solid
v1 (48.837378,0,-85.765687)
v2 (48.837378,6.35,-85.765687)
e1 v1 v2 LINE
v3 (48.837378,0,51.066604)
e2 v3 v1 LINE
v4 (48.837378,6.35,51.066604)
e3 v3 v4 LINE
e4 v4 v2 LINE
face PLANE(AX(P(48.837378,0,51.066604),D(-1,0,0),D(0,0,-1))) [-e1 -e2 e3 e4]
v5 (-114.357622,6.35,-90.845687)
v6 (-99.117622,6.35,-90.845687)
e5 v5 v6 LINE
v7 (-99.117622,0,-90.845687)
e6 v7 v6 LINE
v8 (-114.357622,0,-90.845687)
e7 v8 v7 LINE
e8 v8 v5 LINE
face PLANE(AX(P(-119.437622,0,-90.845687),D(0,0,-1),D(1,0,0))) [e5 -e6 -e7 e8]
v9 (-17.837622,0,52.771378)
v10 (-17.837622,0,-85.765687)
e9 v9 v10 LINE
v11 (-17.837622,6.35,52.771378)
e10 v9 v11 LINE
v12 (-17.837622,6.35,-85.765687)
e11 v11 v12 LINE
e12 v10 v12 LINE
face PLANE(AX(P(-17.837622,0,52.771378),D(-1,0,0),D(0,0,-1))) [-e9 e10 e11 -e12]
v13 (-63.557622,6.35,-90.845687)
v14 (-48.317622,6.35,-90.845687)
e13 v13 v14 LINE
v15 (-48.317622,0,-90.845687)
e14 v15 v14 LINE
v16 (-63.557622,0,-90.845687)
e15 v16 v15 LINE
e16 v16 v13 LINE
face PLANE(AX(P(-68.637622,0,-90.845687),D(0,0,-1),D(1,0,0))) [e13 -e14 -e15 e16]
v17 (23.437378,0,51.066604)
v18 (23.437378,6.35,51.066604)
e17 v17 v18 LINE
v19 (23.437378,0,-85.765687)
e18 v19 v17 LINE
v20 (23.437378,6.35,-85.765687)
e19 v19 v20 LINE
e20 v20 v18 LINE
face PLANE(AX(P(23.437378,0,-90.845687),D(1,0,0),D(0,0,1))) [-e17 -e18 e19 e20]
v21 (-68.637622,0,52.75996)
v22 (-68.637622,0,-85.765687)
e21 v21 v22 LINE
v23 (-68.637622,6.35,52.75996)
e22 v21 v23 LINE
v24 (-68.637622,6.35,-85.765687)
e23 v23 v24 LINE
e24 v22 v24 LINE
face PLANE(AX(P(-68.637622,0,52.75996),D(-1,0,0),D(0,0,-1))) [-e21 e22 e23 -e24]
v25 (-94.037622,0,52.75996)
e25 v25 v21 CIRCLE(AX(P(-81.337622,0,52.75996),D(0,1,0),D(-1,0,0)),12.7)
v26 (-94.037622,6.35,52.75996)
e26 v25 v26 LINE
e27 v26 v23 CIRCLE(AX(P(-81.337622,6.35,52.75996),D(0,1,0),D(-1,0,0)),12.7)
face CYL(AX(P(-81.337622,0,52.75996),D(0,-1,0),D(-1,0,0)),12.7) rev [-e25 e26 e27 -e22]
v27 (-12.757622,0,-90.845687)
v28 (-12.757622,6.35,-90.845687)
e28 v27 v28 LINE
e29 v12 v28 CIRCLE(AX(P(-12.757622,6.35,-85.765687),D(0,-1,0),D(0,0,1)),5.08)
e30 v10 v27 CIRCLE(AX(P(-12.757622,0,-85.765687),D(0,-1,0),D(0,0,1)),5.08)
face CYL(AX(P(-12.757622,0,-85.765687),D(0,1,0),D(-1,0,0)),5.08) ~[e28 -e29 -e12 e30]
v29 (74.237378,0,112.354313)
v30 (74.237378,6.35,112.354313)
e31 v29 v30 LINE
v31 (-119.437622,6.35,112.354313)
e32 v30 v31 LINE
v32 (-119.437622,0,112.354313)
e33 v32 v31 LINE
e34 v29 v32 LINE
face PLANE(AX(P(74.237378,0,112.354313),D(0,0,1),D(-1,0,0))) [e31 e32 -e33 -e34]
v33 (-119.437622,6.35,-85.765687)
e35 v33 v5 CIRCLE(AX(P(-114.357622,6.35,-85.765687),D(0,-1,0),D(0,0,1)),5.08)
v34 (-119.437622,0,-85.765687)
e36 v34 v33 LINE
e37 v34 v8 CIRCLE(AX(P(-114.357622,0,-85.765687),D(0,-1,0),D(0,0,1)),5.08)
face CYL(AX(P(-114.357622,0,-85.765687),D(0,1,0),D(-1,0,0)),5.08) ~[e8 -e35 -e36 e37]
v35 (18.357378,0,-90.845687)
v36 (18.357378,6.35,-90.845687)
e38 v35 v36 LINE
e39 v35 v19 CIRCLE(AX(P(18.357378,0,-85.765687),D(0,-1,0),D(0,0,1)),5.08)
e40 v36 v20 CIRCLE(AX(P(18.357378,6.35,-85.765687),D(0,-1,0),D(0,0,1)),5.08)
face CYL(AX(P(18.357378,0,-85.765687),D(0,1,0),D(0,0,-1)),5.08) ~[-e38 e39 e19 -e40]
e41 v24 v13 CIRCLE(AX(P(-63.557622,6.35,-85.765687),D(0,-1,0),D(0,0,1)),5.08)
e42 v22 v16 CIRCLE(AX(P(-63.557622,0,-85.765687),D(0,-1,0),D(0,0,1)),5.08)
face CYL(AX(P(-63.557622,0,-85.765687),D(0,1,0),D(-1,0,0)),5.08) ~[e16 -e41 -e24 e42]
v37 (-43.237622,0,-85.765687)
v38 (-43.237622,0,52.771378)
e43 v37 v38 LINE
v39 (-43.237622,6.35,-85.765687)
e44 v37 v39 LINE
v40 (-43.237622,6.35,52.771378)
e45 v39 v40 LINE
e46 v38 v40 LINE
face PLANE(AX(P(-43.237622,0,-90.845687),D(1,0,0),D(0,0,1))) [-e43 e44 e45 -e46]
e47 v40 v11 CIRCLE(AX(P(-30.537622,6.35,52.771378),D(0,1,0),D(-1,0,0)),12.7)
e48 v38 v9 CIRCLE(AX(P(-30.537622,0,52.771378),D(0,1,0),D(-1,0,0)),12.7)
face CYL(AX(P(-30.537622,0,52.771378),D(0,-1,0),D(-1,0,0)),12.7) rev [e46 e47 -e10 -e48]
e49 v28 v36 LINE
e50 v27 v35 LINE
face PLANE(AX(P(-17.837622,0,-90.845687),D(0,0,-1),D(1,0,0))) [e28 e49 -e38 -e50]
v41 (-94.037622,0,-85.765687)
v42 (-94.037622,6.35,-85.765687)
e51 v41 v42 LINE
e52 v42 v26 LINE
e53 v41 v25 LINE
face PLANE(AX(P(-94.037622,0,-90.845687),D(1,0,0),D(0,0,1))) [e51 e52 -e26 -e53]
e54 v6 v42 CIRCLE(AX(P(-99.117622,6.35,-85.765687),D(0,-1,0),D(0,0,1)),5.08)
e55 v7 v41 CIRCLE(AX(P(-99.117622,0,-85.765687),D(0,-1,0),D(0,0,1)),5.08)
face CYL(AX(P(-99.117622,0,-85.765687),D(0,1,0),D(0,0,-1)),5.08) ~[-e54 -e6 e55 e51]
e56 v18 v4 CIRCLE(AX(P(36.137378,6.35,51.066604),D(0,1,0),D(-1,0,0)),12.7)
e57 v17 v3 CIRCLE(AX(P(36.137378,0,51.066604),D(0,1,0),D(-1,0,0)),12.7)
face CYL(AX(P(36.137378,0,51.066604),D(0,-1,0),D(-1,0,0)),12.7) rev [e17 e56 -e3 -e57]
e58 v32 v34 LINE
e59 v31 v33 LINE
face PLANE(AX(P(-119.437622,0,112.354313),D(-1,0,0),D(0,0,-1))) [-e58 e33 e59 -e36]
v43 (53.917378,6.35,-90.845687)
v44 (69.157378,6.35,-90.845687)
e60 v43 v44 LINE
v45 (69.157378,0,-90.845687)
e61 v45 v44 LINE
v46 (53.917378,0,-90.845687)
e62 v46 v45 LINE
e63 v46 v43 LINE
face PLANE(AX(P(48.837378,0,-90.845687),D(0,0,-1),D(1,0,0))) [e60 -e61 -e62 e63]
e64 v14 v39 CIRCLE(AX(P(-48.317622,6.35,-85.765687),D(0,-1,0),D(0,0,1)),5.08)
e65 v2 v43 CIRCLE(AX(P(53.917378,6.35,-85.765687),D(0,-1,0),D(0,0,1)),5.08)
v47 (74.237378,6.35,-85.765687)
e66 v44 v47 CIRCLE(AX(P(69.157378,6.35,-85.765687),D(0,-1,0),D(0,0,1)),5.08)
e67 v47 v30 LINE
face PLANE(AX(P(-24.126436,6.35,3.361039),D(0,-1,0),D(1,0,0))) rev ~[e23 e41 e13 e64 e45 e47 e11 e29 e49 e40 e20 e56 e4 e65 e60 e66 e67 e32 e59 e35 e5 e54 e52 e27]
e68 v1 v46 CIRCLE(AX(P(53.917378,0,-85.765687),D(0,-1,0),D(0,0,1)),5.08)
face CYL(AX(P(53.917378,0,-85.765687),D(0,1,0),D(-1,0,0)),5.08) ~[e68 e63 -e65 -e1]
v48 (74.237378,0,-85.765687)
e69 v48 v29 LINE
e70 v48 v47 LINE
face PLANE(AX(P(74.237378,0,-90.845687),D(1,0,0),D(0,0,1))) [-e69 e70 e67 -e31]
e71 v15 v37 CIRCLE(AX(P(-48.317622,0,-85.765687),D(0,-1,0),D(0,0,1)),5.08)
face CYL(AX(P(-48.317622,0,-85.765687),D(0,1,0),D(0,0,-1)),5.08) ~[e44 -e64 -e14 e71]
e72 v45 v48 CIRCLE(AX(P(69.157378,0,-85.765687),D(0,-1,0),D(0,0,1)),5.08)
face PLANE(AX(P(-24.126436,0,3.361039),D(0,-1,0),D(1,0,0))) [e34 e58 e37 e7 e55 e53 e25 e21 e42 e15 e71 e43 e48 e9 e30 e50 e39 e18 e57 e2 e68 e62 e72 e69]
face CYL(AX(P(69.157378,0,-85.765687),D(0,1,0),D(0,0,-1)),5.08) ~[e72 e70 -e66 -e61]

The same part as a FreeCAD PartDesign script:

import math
import FreeCAD as App
import Part
import Sketcher
Q = App.Units.Quantity


def edges_at(feature, points):
    """Names of the edges that pass closest to the given points."""
    edges = feature.Shape.Edges
    near = lambda p: min(range(len(edges)), key=lambda i: edges[i].distToShape(Part.Vertex(*p))[0])
    return sorted({f"Edge{near(p) + 1}" for p in points})

doc = App.newDocument("Part")
body = doc.addObject("PartDesign::Body", "Body")

# Sketch on XZ plane
sketch1 = body.newObject("Sketcher::SketchObject", "Sketch")
sketch1.AttachmentSupport = (doc.getObject("XZ_Plane"), [""])
sketch1.MapMode = "FlatFace"
sketch1.addGeometry([
    Part.LineSegment(App.Vector(74, 112, 0), App.Vector(-119, 112, 0)),  # 0
    Part.LineSegment(App.Vector(-119, 112, 0), App.Vector(-119, -91, 0)),  # 1
    Part.LineSegment(App.Vector(-119, -91, 0), App.Vector(-94, -91, 0)),  # 2
    Part.LineSegment(App.Vector(-94, -91, 0), App.Vector(-94, 53, 0)),  # 3
    Part.ArcOfCircle(Part.Circle(App.Vector(-81, 53, 0), App.Vector(0, 0, 1), 13), math.radians(0), math.radians(180)),  # 4
    Part.LineSegment(App.Vector(-69, 53, 0), App.Vector(-69, -91, 0)),  # 5
    Part.LineSegment(App.Vector(-69, -91, 0), App.Vector(-43, -91, 0)),  # 6
    Part.LineSegment(App.Vector(-43, -91, 0), App.Vector(-43, 53, 0)),  # 7
    Part.ArcOfCircle(Part.Circle(App.Vector(-31, 53, 0), App.Vector(0, 0, 1), 13), math.radians(0), math.radians(180)),  # 8
    Part.LineSegment(App.Vector(-18, 53, 0), App.Vector(-18, -91, 0)),  # 9
    Part.LineSegment(App.Vector(-18, -91, 0), App.Vector(23, -91, 0)),  # 10
    Part.LineSegment(App.Vector(23, -91, 0), App.Vector(23, 51, 0)),  # 11
    Part.ArcOfCircle(Part.Circle(App.Vector(36, 51, 0), App.Vector(0, 0, 1), 13), math.radians(0), math.radians(180)),  # 12
    Part.LineSegment(App.Vector(49, 51, 0), App.Vector(49, -91, 0)),  # 13
    Part.LineSegment(App.Vector(49, -91, 0), App.Vector(74, -91, 0)),  # 14
    Part.LineSegment(App.Vector(74, -91, 0), App.Vector(74, 112, 0)),  # 15
], False)
sketch1.addConstraint([
    Sketcher.Constraint("Coincident", 0, 2, 1, 1),
    Sketcher.Constraint("Coincident", 1, 2, 2, 1),
    Sketcher.Constraint("Coincident", 2, 2, 3, 1),
    Sketcher.Constraint("Tangent", 3, 2, 4, 2),
    Sketcher.Constraint("Tangent", 4, 1, 5, 1),
    Sketcher.Constraint("Coincident", 5, 2, 6, 1),
    Sketcher.Constraint("Coincident", 6, 2, 7, 1),
    Sketcher.Constraint("Tangent", 7, 2, 8, 2),
    Sketcher.Constraint("Tangent", 8, 1, 9, 1),
    Sketcher.Constraint("Coincident", 9, 2, 10, 1),
    Sketcher.Constraint("Coincident", 10, 2, 11, 1),
    Sketcher.Constraint("Tangent", 11, 2, 12, 2),
    Sketcher.Constraint("Tangent", 12, 1, 13, 1),
    Sketcher.Constraint("Coincident", 13, 2, 14, 1),
    Sketcher.Constraint("Coincident", 14, 2, 15, 1),
    Sketcher.Constraint("Coincident", 15, 2, 0, 1),
    Sketcher.Constraint("Horizontal", 0),
    Sketcher.Constraint("Vertical", 1),
    Sketcher.Constraint("Horizontal", 2),
    Sketcher.Constraint("Vertical", 3),
    Sketcher.Constraint("Vertical", 5),
    Sketcher.Constraint("Horizontal", 6),
    Sketcher.Constraint("Vertical", 7),
    Sketcher.Constraint("Vertical", 9),
    Sketcher.Constraint("Horizontal", 10),
    Sketcher.Constraint("Vertical", 11),
    Sketcher.Constraint("Vertical", 13),
    Sketcher.Constraint("Horizontal", 14),
    Sketcher.Constraint("Vertical", 15),
    Sketcher.Constraint("Equal", 4, 8),
    Sketcher.Constraint("Equal", 8, 12),
    Sketcher.Constraint("Horizontal", 2, 2, 5, 2),
    Sketcher.Constraint("Horizontal", 6, 2, 9, 2),
    Sketcher.Constraint("Horizontal", 10, 2, 13, 2),
    Sketcher.Constraint("Equal", 2, 6),
    Sketcher.Constraint("Equal", 6, 14),
    Sketcher.Constraint("Radius", 4, Q("0.5 in")),
    Sketcher.Constraint("DistanceX", 2, 1, 2, 2, Q("1 in")),
    Sketcher.Constraint("DistanceY", 1, 2, 1, 1, Q("8 in")),
    Sketcher.Constraint("DistanceX", 0, 2, 0, 1, Q("7.625 in")),
    Sketcher.Constraint("DistanceY", 11, 1, 11, 2, 141.912291),
    Sketcher.Constraint("DistanceY", 3, 1, 3, 2, 143.605647),
    Sketcher.Constraint("DistanceY", 7, 1, 7, 2, 143.617065),
    Sketcher.Constraint("DistanceX", 4, 3, -1, 1, 81.337622),
    Sketcher.Constraint("DistanceY", -1, 1, 4, 3, 52.75996),
])
pad1 = body.newObject("PartDesign::Pad", "Pad")
pad1.Profile = sketch1
pad1.Length = Q("0.25 in")
pad1.Reversed = True
doc.recompute()

fillet = body.newObject("PartDesign::Fillet", "Fillet")
fillet.Base = (pad1, edges_at(pad1, [
    (-94.038, 3.175, -90.846),
    (-68.638, 3.175, -90.846),
    (-43.238, 3.175, -90.846),
    (-17.838, 3.175, -90.846),
    (23.437, 3.175, -90.846),
    (48.837, 3.175, -90.846),
    (74.237, 3.175, -90.846),
    (-119.438, 3.175, -90.846),
]))
fillet.Radius = Q("0.2 in")

doc.recompute()
